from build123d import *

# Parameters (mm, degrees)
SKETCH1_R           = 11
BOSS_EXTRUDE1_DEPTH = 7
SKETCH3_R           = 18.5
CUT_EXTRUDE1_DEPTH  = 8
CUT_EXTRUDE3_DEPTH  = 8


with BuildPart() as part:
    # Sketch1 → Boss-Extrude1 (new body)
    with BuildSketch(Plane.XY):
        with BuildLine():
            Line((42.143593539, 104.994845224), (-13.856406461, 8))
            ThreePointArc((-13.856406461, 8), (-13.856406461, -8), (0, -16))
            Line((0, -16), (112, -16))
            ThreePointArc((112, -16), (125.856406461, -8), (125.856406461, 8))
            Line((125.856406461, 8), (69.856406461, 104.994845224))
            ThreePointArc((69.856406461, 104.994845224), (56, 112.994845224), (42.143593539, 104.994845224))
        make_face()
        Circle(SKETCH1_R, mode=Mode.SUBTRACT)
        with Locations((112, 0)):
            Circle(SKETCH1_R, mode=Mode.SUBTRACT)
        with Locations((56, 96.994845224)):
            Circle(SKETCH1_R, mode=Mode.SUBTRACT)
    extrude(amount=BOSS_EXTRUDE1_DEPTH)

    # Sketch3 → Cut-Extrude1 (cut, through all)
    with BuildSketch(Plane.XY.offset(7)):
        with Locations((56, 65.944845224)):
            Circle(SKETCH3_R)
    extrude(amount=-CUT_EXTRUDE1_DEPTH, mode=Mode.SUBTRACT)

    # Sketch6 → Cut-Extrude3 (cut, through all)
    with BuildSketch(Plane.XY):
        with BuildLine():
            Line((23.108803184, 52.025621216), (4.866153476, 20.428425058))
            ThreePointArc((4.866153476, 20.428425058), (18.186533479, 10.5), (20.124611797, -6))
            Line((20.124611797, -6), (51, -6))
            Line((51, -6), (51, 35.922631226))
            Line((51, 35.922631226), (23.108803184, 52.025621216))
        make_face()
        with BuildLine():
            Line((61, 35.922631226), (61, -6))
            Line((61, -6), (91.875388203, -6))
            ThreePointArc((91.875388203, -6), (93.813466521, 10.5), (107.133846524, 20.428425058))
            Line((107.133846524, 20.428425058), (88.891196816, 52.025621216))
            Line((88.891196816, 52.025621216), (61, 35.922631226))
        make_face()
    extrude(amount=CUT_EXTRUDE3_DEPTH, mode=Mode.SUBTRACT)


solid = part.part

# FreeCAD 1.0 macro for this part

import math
import FreeCAD as App
import Part
import Sketcher
Q = App.Units.Quantity

doc = App.newDocument("Part")
params = doc.addObject("Spreadsheet::Sheet", "Params")
for row, (alias, value) in enumerate([
    ("sketch1_diameter", "22 mm"),
    ("sketch1_radius", "16 mm"),
    ("sketch1_width", "112 mm"),
    ("pad1_length", "7 mm"),
    ("sketch2_diameter", "37 mm"),
    ("sketch3_radius", "21 mm"),
], start=1):
    params.set(f"A{row}", alias)
    params.set(f"B{row}", "=" + value)
    params.setAlias(f"B{row}", alias)

body = doc.addObject("PartDesign::Body", "Body")

# Sketch on XY plane
sketch1 = body.newObject("Sketcher::SketchObject", "Sketch")
sketch1.AttachmentSupport = (doc.getObject("XY_Plane"), [""])
sketch1.MapMode = "FlatFace"
sketch1.addGeometry(Part.LineSegment(App.Vector(42, 105, 0), App.Vector(-14, 8, 0)), False)
sketch1.addGeometry(Part.ArcOfCircle(Part.Circle(App.Vector(0, 0, 0), App.Vector(0, 0, 1), 16), math.radians(150), math.radians(270)), False)
sketch1.addGeometry(Part.LineSegment(App.Vector(0, -16, 0), App.Vector(112, -16, 0)), False)
sketch1.addGeometry(Part.ArcOfCircle(Part.Circle(App.Vector(112, 0, 0), App.Vector(0, 0, 1), 16), math.radians(-90), math.radians(30)), False)
sketch1.addGeometry(Part.LineSegment(App.Vector(126, 8, 0), App.Vector(70, 105, 0)), False)
sketch1.addGeometry(Part.ArcOfCircle(Part.Circle(App.Vector(56, 97, 0), App.Vector(0, 0, 1), 16), math.radians(30), math.radians(150)), False)
sketch1.addGeometry(Part.Circle(App.Vector(0, 0, 0), App.Vector(0, 0, 1), 11), False)
sketch1.addGeometry(Part.Circle(App.Vector(112, 0, 0), App.Vector(0, 0, 1), 11), False)
sketch1.addGeometry(Part.Circle(App.Vector(56, 97, 0), App.Vector(0, 0, 1), 11), False)
sketch1.addConstraint(Sketcher.Constraint("Tangent", 0, 2, 1, 1))
sketch1.addConstraint(Sketcher.Constraint("Tangent", 1, 2, 2, 1))
sketch1.addConstraint(Sketcher.Constraint("Tangent", 2, 2, 3, 1))
sketch1.addConstraint(Sketcher.Constraint("Tangent", 3, 2, 4, 1))
sketch1.addConstraint(Sketcher.Constraint("Tangent", 4, 2, 5, 1))
sketch1.addConstraint(Sketcher.Constraint("Tangent", 5, 2, 0, 1))
sketch1.addConstraint(Sketcher.Constraint("Horizontal", 2))
sketch1.addConstraint(Sketcher.Constraint("Coincident", 1, 3, -1, 1))
sketch1.addConstraint(Sketcher.Constraint("Coincident", 6, 3, -1, 1))
sketch1.addConstraint(Sketcher.Constraint("Coincident", 7, 3, 3, 3))
sketch1.addConstraint(Sketcher.Constraint("Coincident", 8, 3, 5, 3))
sketch1.addConstraint(Sketcher.Constraint("Equal", 1, 3))
sketch1.addConstraint(Sketcher.Constraint("Equal", 3, 5))
sketch1.addConstraint(Sketcher.Constraint("Equal", 6, 7))
sketch1.addConstraint(Sketcher.Constraint("Equal", 7, 8))
sketch1.addConstraint(Sketcher.Constraint("Horizontal", 0, 2, 3, 2))
sketch1.addConstraint(Sketcher.Constraint("Diameter", 6, 22.0))
sketch1.addConstraint(Sketcher.Constraint("Radius", 1, 16.0))
sketch1.addConstraint(Sketcher.Constraint("DistanceX", 2, 1, 2, 2, 112.0))
sketch1.addConstraint(Sketcher.Constraint("Angle", 0, Q("-120 deg")))
sketch1.setExpression("Constraints[16]", "Params.sketch1_diameter")
sketch1.setExpression("Constraints[17]", "Params.sketch1_radius")
sketch1.setExpression("Constraints[18]", "Params.sketch1_width")
pad1 = body.newObject("PartDesign::Pad", "Pad")
pad1.Profile = sketch1
pad1.setExpression("Length", "Params.pad1_length")

# Sketch on XY plane
sketch2 = body.newObject("Sketcher::SketchObject", "Sketch001")
sketch2.AttachmentSupport = (doc.getObject("XY_Plane"), [""])
sketch2.MapMode = "FlatFace"
sketch2.AttachmentOffset = App.Placement(App.Vector(0, 0, 7), App.Rotation())
sketch2.addGeometry(Part.Circle(App.Vector(56, 66, 0), App.Vector(0, 0, 1), 18), False)
sketch2.addConstraint(Sketcher.Constraint("Diameter", 0, 37.0))
sketch2.addConstraint(Sketcher.Constraint("DistanceX", -1, 1, 0, 3, 56.0))
sketch2.addConstraint(Sketcher.Constraint("DistanceY", -1, 1, 0, 3, 65.944845))
sketch2.setExpression("Constraints[0]", "Params.sketch2_diameter")
pocket1 = body.newObject("PartDesign::Pocket", "Pocket")
pocket1.Profile = sketch2
pocket1.Type = "ThroughAll"

# Sketch on XY plane
sketch3 = body.newObject("Sketcher::SketchObject", "Sketch002")
sketch3.AttachmentSupport = (doc.getObject("XY_Plane"), [""])
sketch3.MapMode = "FlatFace"
sketch3.addGeometry(Part.LineSegment(App.Vector(23, 52, 0), App.Vector(5, 20, 0)), False)
sketch3.addGeometry(Part.ArcOfCircle(Part.Circle(App.Vector(0, 0, 0), App.Vector(0, 0, 1), 21), math.radians(-17), math.radians(77)), False)
sketch3.addGeometry(Part.LineSegment(App.Vector(20, -6, 0), App.Vector(51, -6, 0)), False)
sketch3.addGeometry(Part.LineSegment(App.Vector(51, -6, 0), App.Vector(51, 36, 0)), False)
sketch3.addGeometry(Part.LineSegment(App.Vector(51, 36, 0), App.Vector(23, 52, 0)), False)
sketch3.addGeometry(Part.LineSegment(App.Vector(61, 36, 0), App.Vector(61, -6, 0)), False)
sketch3.addGeometry(Part.LineSegment(App.Vector(61, -6, 0), App.Vector(92, -6, 0)), False)
sketch3.addGeometry(Part.ArcOfCircle(Part.Circle(App.Vector(112, 0, 0), App.Vector(0, 0, 1), 21), math.radians(103), math.radians(197)), False)
sketch3.addGeometry(Part.LineSegment(App.Vector(107, 20, 0), App.Vector(89, 52, 0)), False)
sketch3.addGeometry(Part.LineSegment(App.Vector(89, 52, 0), App.Vector(61, 36, 0)), False)
sketch3.addConstraint(Sketcher.Constraint("Coincident", 0, 2, 1, 2))
sketch3.addConstraint(Sketcher.Constraint("Coincident", 1, 1, 2, 1))
sketch3.addConstraint(Sketcher.Constraint("Coincident", 2, 2, 3, 1))
sketch3.addConstraint(Sketcher.Constraint("Coincident", 3, 2, 4, 1))
sketch3.addConstraint(Sketcher.Constraint("Coincident", 4, 2, 0, 1))
sketch3.addConstraint(Sketcher.Constraint("Coincident", 5, 2, 6, 1))
sketch3.addConstraint(Sketcher.Constraint("Coincident", 6, 2, 7, 2))
sketch3.addConstraint(Sketcher.Constraint("Coincident", 7, 1, 8, 1))
sketch3.addConstraint(Sketcher.Constraint("Coincident", 8, 2, 9, 1))
sketch3.addConstraint(Sketcher.Constraint("Coincident", 9, 2, 5, 1))
sketch3.addConstraint(Sketcher.Constraint("Horizontal", 2))
sketch3.addConstraint(Sketcher.Constraint("Vertical", 3))
sketch3.addConstraint(Sketcher.Constraint("Vertical", 5))
sketch3.addConstraint(Sketcher.Constraint("Horizontal", 6))
sketch3.addConstraint(Sketcher.Constraint("Coincident", 1, 3, -1, 1))
sketch3.addConstraint(Sketcher.Constraint("Equal", 1, 7))
sketch3.addConstraint(Sketcher.Constraint("PointOnObject", 7, 3, -1))
sketch3.addConstraint(Sketcher.Constraint("Perpendicular", 0, 4))
sketch3.addConstraint(Sketcher.Constraint("Perpendicular", 8, 9))
sketch3.addConstraint(Sketcher.Constraint("Horizontal", 2, 2, 5, 2))
sketch3.addConstraint(Sketcher.Constraint("Horizontal", 0, 2, 7, 1))
sketch3.addConstraint(Sketcher.Constraint("Horizontal", 4, 2, 8, 2))
sketch3.addConstraint(Sketcher.Constraint("Horizontal", 3, 2, 9, 2))
sketch3.addConstraint(Sketcher.Constraint("Equal", 2, 6))
sketch3.addConstraint(Sketcher.Constraint("Radius", 1, 21.0))
sketch3.addConstraint(Sketcher.Constraint("Angle", 0, Q("-120 deg")))
sketch3.addConstraint(Sketcher.Constraint("DistanceX", -1, 1, 7, 3, 112.0))
sketch3.addConstraint(Sketcher.Constraint("DistanceY", 1, 1, -1, 1, 6.0))
sketch3.addConstraint(Sketcher.Constraint("DistanceX", -1, 1, 2, 2, 51.0))
sketch3.addConstraint(Sketcher.Constraint("Distance", 0, 36.485299))
sketch3.addConstraint(Sketcher.Constraint("DistanceY", 3, 1, 3, 2, 41.922631))
sketch3.setExpression("Constraints[24]", "Params.sketch3_radius")
pocket2 = body.newObject("PartDesign::Pocket", "Pocket001")
pocket2.Profile = sketch3
pocket2.Type = "ThroughAll"
pocket2.Reversed = True

doc.recompute()
